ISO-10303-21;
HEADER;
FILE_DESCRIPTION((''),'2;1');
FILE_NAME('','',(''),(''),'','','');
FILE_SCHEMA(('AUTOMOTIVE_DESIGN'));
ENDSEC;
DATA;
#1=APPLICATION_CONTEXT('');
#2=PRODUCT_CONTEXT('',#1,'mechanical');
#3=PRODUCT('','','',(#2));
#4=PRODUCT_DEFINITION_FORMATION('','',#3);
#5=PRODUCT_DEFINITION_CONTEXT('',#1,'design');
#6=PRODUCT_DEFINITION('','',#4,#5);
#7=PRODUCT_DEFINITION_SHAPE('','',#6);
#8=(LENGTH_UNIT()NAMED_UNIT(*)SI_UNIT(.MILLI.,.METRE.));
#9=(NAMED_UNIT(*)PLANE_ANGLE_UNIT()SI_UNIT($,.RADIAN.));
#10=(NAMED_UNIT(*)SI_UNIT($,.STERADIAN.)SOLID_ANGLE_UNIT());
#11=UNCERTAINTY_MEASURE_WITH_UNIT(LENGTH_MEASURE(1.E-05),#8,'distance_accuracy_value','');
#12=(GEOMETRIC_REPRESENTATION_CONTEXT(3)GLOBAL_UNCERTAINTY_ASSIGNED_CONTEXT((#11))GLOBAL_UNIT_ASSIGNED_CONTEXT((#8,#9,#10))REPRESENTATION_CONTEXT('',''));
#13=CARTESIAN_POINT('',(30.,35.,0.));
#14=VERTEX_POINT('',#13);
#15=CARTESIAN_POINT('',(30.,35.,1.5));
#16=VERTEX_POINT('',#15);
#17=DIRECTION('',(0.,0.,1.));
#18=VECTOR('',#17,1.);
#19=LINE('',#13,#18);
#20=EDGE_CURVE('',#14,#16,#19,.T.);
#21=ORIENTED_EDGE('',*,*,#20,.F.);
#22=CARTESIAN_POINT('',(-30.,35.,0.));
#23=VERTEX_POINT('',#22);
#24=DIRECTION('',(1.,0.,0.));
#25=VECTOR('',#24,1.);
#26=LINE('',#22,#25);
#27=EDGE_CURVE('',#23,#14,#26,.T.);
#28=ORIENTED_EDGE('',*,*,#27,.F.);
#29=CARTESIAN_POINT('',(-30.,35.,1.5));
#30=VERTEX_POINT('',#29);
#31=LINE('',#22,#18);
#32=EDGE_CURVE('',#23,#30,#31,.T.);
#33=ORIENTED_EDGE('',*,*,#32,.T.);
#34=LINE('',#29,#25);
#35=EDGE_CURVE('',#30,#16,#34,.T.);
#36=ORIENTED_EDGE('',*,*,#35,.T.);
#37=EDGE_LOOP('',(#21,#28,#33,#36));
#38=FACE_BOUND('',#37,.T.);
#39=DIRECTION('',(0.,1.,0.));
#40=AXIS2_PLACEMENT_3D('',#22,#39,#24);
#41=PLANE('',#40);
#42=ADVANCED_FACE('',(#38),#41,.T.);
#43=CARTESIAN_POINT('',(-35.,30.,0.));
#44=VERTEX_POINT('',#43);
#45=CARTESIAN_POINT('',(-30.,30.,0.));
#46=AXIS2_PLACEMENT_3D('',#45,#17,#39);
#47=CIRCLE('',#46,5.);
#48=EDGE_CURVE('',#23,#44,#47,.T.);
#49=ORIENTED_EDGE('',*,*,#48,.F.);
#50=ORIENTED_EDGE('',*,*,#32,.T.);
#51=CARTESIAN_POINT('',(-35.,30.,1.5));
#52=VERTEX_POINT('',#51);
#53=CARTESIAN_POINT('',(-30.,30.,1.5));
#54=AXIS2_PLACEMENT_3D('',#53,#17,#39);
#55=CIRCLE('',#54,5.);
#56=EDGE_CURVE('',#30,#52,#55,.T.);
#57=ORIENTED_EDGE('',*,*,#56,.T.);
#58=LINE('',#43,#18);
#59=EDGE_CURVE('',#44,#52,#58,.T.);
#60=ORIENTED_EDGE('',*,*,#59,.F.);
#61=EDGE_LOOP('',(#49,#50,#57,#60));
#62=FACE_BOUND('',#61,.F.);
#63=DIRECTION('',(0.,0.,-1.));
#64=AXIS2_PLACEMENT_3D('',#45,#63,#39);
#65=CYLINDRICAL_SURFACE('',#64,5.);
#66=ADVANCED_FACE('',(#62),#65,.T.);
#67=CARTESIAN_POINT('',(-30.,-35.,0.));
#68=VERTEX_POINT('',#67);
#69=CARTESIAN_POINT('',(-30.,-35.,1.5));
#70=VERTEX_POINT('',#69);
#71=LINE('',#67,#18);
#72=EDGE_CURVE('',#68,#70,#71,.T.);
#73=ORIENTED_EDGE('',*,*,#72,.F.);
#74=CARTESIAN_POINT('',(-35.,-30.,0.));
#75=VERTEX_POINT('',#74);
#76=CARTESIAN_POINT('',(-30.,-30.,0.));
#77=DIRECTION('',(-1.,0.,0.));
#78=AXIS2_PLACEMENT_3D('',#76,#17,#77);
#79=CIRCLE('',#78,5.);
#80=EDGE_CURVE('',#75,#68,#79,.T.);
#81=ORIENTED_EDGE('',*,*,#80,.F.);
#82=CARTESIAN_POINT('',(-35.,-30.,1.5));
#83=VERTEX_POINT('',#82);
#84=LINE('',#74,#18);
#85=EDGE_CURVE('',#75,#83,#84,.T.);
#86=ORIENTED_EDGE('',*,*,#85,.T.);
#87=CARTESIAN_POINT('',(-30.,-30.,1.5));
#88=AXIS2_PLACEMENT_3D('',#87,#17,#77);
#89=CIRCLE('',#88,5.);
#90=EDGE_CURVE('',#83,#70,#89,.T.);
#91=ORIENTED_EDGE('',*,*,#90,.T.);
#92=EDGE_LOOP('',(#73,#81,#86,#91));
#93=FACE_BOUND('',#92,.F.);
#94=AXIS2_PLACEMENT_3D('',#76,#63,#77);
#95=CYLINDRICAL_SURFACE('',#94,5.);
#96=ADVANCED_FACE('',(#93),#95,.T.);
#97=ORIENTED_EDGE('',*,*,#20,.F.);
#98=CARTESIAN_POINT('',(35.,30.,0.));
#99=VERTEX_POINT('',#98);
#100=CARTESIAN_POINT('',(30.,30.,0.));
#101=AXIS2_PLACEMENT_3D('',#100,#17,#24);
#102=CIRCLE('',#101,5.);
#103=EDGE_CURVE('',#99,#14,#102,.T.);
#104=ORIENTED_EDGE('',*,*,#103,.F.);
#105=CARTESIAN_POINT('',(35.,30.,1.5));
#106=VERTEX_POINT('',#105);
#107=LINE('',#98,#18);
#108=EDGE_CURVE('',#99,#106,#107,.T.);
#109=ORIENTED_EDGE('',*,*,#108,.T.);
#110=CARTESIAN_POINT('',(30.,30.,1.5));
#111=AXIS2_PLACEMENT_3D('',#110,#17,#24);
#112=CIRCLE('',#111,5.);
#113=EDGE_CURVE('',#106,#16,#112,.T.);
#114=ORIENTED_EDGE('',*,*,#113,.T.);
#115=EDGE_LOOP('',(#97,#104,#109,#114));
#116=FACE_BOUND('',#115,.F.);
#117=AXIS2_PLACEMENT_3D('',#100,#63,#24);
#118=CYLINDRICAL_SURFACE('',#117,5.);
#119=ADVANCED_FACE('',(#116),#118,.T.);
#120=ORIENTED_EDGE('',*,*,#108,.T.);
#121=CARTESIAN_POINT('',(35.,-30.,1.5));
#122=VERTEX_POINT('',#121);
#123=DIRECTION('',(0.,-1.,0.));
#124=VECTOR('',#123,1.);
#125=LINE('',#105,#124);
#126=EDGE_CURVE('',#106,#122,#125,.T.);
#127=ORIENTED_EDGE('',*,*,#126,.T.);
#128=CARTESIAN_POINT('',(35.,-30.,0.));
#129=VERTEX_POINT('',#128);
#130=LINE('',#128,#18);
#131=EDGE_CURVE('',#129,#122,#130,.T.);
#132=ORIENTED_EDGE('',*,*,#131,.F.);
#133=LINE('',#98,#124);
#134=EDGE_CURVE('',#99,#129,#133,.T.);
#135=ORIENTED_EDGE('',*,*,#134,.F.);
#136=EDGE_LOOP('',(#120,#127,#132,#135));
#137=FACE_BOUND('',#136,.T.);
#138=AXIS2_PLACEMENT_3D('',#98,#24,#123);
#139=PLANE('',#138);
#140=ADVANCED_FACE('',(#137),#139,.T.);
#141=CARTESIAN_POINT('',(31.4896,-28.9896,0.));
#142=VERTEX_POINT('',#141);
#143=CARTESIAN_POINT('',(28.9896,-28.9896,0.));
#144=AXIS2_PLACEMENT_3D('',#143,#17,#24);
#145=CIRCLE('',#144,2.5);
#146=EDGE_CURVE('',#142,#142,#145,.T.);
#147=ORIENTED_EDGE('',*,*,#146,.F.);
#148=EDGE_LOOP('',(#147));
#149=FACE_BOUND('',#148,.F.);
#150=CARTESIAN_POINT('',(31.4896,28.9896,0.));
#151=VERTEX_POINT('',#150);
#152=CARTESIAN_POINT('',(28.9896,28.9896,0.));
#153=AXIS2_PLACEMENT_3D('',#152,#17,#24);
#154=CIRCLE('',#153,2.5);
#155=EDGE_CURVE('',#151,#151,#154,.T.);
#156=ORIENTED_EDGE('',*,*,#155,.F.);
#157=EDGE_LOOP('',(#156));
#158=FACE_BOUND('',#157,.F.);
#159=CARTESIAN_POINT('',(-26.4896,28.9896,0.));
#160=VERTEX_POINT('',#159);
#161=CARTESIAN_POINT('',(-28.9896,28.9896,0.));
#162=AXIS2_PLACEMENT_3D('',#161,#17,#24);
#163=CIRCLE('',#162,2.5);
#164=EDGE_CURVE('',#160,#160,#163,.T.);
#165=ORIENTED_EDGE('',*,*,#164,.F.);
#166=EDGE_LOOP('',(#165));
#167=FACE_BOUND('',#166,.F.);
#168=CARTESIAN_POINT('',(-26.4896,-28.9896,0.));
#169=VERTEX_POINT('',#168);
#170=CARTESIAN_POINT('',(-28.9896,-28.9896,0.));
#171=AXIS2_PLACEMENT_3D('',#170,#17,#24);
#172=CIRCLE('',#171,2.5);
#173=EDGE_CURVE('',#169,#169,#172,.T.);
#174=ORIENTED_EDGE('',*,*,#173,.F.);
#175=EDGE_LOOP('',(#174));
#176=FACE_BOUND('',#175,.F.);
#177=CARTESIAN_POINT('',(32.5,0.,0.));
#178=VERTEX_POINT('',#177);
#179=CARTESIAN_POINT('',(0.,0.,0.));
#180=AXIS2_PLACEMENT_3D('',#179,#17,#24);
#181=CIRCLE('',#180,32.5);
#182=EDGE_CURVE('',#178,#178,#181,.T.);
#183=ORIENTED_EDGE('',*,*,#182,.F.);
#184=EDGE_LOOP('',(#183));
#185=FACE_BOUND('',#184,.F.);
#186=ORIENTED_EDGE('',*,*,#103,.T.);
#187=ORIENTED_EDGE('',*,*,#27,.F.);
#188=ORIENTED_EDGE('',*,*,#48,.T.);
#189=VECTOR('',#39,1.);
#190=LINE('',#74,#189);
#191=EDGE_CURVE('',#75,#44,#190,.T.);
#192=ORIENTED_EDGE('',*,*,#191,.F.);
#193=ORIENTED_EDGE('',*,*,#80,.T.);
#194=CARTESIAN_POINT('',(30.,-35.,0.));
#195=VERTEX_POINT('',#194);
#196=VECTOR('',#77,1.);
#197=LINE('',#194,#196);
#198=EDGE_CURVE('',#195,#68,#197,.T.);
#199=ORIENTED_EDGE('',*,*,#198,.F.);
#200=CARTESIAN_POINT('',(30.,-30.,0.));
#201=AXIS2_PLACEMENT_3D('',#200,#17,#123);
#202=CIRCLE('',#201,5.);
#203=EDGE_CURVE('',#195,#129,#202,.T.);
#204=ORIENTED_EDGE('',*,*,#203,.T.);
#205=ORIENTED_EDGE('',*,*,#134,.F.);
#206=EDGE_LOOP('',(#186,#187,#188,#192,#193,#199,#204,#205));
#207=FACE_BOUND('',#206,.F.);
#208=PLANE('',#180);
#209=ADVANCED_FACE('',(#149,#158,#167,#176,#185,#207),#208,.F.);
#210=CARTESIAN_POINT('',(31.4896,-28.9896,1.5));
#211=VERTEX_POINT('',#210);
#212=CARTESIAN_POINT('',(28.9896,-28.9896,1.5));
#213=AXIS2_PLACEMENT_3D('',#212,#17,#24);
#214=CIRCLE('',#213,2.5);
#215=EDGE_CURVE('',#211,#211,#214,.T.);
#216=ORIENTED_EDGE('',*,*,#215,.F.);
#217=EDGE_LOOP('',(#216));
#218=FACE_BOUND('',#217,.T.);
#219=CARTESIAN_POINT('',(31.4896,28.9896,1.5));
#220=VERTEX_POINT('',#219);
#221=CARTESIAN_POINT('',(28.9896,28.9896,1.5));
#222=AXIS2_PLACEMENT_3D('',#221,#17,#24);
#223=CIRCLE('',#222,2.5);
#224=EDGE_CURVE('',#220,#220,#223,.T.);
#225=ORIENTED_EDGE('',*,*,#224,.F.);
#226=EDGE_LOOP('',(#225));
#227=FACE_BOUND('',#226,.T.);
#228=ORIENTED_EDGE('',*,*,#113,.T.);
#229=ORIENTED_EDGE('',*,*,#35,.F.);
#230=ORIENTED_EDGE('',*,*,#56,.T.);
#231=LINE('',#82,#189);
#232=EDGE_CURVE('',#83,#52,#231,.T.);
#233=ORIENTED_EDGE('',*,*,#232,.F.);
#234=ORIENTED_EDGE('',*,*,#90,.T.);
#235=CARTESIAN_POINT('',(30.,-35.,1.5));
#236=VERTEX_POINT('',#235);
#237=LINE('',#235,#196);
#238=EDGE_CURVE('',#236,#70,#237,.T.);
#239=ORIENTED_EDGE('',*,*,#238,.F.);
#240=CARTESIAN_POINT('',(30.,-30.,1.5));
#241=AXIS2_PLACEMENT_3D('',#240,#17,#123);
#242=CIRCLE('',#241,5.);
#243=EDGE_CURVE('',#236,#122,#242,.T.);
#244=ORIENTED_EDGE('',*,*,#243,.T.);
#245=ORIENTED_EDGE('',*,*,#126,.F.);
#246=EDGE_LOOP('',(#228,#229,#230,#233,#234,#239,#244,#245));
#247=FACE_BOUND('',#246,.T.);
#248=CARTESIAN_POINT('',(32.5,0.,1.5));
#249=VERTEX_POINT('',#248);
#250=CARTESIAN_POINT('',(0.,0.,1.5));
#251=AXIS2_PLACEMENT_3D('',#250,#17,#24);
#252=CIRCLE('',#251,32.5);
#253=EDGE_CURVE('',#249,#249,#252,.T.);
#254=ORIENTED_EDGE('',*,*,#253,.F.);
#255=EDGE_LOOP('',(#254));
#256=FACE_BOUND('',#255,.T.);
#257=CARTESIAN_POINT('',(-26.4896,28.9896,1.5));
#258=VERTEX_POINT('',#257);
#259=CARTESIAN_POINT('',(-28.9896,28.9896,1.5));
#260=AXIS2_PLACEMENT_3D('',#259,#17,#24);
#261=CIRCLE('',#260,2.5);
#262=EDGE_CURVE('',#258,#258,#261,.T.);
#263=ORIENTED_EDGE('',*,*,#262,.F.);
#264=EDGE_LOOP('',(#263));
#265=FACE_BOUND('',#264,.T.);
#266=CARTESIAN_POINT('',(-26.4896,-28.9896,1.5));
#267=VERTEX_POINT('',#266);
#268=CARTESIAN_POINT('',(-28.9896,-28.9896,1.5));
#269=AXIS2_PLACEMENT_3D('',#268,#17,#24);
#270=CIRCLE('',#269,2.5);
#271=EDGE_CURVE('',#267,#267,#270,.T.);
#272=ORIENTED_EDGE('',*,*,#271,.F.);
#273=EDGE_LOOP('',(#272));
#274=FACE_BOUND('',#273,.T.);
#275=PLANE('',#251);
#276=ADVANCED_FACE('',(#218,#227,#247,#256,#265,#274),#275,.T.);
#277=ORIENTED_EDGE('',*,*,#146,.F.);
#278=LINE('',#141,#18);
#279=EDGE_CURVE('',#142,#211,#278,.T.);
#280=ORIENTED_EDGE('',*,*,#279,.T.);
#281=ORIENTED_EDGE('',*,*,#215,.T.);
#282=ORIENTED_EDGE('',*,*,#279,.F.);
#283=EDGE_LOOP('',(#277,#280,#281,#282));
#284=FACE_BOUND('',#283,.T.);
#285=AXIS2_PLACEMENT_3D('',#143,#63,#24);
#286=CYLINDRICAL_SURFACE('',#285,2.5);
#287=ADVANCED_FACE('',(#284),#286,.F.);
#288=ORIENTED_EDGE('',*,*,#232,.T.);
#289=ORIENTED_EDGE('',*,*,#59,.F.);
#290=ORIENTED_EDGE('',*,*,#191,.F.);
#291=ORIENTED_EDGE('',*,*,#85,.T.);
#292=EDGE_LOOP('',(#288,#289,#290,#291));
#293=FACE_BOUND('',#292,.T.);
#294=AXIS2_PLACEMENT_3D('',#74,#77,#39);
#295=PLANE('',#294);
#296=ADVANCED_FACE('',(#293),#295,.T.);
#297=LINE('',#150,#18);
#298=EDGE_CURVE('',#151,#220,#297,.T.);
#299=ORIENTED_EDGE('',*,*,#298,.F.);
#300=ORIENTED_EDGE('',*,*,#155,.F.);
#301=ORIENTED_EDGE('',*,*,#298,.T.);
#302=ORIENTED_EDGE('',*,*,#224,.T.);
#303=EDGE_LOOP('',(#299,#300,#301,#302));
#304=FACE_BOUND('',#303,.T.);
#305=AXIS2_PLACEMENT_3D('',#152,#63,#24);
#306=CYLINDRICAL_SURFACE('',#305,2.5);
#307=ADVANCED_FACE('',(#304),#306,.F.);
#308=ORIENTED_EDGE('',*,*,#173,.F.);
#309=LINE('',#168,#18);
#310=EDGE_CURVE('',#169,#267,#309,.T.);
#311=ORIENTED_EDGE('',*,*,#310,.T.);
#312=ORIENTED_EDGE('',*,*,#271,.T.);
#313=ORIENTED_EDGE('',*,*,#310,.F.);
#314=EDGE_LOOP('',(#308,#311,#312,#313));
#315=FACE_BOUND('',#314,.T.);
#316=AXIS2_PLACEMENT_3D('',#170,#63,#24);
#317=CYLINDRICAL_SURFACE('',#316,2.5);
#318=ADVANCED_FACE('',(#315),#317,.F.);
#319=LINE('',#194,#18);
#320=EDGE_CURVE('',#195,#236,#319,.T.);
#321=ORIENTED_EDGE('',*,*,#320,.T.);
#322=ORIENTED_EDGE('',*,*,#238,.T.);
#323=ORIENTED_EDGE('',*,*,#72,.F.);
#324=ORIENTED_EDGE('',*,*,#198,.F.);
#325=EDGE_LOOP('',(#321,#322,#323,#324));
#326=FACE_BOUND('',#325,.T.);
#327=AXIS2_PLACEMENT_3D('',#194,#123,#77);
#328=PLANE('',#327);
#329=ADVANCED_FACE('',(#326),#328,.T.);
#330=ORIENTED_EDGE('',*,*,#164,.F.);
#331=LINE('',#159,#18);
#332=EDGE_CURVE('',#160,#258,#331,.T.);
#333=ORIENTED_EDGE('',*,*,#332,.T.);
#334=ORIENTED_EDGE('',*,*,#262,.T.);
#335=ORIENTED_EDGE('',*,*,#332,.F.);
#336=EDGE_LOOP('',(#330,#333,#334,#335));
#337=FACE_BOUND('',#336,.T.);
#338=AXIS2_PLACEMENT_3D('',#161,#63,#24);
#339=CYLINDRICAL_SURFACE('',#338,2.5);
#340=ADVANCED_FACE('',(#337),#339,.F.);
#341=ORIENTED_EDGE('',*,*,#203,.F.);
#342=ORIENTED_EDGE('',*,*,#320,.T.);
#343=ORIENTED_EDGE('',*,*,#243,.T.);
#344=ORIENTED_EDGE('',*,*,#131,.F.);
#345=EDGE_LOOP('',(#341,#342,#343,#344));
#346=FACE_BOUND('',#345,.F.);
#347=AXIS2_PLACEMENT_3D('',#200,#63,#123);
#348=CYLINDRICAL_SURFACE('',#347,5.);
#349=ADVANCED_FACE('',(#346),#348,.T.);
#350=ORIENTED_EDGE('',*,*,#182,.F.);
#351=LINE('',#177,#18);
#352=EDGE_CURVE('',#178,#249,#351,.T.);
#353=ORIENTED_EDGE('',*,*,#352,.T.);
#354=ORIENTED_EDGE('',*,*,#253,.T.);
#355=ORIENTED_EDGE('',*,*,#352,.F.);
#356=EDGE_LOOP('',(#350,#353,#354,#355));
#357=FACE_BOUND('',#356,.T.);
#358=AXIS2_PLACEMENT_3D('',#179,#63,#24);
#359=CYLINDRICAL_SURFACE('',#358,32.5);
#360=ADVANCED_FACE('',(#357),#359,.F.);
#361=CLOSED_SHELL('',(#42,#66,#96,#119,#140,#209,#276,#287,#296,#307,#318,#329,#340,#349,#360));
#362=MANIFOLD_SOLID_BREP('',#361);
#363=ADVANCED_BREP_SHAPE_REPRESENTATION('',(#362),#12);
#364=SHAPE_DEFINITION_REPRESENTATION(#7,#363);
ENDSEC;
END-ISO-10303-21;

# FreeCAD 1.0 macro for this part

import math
import FreeCAD as App
import Part
import Sketcher
Q = App.Units.Quantity

doc = App.newDocument("Part")
body = doc.addObject("PartDesign::Body", "Body")

# Sketch on XY plane
sketch1 = doc.addObject("Sketcher::SketchObject", "Sketch")
body.addObject(sketch1)
sketch1.AttachmentSupport = (doc.XY_Plane, [""])
sketch1.MapMode = "FlatFace"
sketch1.addGeometry(Part.LineSegment(App.Vector(-30, -35, 0), App.Vector(30, -35, 0)), False)
sketch1.addGeometry(Part.ArcOfCircle(Part.Circle(App.Vector(30, -30, 0), App.Vector(0, 0, 1), 5), math.radians(-90), math.radians(0)), False)
sketch1.addGeometry(Part.LineSegment(App.Vector(35, -30, 0), App.Vector(35, 30, 0)), False)
sketch1.addGeometry(Part.ArcOfCircle(Part.Circle(App.Vector(30, 30, 0), App.Vector(0, 0, 1), 5), math.radians(0), math.radians(90)), False)
sketch1.addGeometry(Part.LineSegment(App.Vector(30, 35, 0), App.Vector(-30, 35, 0)), False)
sketch1.addGeometry(Part.ArcOfCircle(Part.Circle(App.Vector(-30, 30, 0), App.Vector(0, 0, 1), 5), math.radians(90), math.radians(180)), False)
sketch1.addGeometry(Part.LineSegment(App.Vector(-35, 30, 0), App.Vector(-35, -30, 0)), False)
sketch1.addGeometry(Part.ArcOfCircle(Part.Circle(App.Vector(-30, -30, 0), App.Vector(0, 0, 1), 5), math.radians(180), math.radians(270)), False)
sketch1.addGeometry(Part.Circle(App.Vector(-29, -29, 0), App.Vector(0, 0, 1), 2.5), False)
sketch1.addGeometry(Part.Circle(App.Vector(29, -29, 0), App.Vector(0, 0, 1), 2.5), False)
sketch1.addGeometry(Part.Circle(App.Vector(-29, 29, 0), App.Vector(0, 0, 1), 2.5), False)
sketch1.addGeometry(Part.Circle(App.Vector(0, 0, 0), App.Vector(0, 0, 1), 32.5), False)
sketch1.addGeometry(Part.Circle(App.Vector(29, 29, 0), App.Vector(0, 0, 1), 2.5), False)
sketch1.addConstraint(Sketcher.Constraint("Tangent", 0, 2, 1, 1))
sketch1.addConstraint(Sketcher.Constraint("Tangent", 1, 2, 2, 1))
sketch1.addConstraint(Sketcher.Constraint("Tangent", 2, 2, 3, 1))
sketch1.addConstraint(Sketcher.Constraint("Tangent", 3, 2, 4, 1))
sketch1.addConstraint(Sketcher.Constraint("Tangent", 4, 2, 5, 1))
sketch1.addConstraint(Sketcher.Constraint("Tangent", 5, 2, 6, 1))
sketch1.addConstraint(Sketcher.Constraint("Tangent", 6, 2, 7, 1))
sketch1.addConstraint(Sketcher.Constraint("Tangent", 7, 2, 0, 1))
sketch1.addConstraint(Sketcher.Constraint("Horizontal", 0))
sketch1.addConstraint(Sketcher.Constraint("Vertical", 2))
sketch1.addConstraint(Sketcher.Constraint("Horizontal", 4))
sketch1.addConstraint(Sketcher.Constraint("Vertical", 6))
sketch1.addConstraint(Sketcher.Constraint("Coincident", 11, 3, -1, 1))
sketch1.addConstraint(Sketcher.Constraint("Equal", 1, 3))
sketch1.addConstraint(Sketcher.Constraint("Equal", 3, 5))
sketch1.addConstraint(Sketcher.Constraint("Equal", 5, 7))
sketch1.addConstraint(Sketcher.Constraint("Equal", 8, 9))
sketch1.addConstraint(Sketcher.Constraint("Equal", 9, 10))
sketch1.addConstraint(Sketcher.Constraint("Equal", 10, 12))
sketch1.addConstraint(Sketcher.Constraint("Symmetric", 1, 3, 5, 3, -1, 1))
sketch1.addConstraint(Sketcher.Constraint("Symmetric", 9, 3, 10, 3, -1, 1))
sketch1.addConstraint(Sketcher.Constraint("Symmetric", 8, 3, 12, 3, -1, 1))
sketch1.addConstraint(Sketcher.Constraint("Symmetric", 8, 3, 9, 3, -2))
sketch1.addConstraint(Sketcher.Constraint("Equal", 4, 2))
sketch1.addConstraint(Sketcher.Constraint("Diameter", 8, Q("5 mm")))
sketch1.addConstraint(Sketcher.Constraint("Diameter", 11, Q("65 mm")))
sketch1.addConstraint(Sketcher.Constraint("Radius", 1, Q("5 mm")))
sketch1.addConstraint(Sketcher.Constraint("DistanceX", 0, 1, 0, 2, Q("60 mm")))
sketch1.addConstraint(Sketcher.Constraint("DistanceX", 8, 3, -1, 1, Q("28.9896 mm")))
sketch1.addConstraint(Sketcher.Constraint("DistanceY", 8, 3, -1, 1, Q("28.9896 mm")))
pad1 = doc.addObject("PartDesign::Pad", "Pad")
body.addObject(pad1)
pad1.Profile = sketch1
pad1.Length = 1.5

doc.recompute()
